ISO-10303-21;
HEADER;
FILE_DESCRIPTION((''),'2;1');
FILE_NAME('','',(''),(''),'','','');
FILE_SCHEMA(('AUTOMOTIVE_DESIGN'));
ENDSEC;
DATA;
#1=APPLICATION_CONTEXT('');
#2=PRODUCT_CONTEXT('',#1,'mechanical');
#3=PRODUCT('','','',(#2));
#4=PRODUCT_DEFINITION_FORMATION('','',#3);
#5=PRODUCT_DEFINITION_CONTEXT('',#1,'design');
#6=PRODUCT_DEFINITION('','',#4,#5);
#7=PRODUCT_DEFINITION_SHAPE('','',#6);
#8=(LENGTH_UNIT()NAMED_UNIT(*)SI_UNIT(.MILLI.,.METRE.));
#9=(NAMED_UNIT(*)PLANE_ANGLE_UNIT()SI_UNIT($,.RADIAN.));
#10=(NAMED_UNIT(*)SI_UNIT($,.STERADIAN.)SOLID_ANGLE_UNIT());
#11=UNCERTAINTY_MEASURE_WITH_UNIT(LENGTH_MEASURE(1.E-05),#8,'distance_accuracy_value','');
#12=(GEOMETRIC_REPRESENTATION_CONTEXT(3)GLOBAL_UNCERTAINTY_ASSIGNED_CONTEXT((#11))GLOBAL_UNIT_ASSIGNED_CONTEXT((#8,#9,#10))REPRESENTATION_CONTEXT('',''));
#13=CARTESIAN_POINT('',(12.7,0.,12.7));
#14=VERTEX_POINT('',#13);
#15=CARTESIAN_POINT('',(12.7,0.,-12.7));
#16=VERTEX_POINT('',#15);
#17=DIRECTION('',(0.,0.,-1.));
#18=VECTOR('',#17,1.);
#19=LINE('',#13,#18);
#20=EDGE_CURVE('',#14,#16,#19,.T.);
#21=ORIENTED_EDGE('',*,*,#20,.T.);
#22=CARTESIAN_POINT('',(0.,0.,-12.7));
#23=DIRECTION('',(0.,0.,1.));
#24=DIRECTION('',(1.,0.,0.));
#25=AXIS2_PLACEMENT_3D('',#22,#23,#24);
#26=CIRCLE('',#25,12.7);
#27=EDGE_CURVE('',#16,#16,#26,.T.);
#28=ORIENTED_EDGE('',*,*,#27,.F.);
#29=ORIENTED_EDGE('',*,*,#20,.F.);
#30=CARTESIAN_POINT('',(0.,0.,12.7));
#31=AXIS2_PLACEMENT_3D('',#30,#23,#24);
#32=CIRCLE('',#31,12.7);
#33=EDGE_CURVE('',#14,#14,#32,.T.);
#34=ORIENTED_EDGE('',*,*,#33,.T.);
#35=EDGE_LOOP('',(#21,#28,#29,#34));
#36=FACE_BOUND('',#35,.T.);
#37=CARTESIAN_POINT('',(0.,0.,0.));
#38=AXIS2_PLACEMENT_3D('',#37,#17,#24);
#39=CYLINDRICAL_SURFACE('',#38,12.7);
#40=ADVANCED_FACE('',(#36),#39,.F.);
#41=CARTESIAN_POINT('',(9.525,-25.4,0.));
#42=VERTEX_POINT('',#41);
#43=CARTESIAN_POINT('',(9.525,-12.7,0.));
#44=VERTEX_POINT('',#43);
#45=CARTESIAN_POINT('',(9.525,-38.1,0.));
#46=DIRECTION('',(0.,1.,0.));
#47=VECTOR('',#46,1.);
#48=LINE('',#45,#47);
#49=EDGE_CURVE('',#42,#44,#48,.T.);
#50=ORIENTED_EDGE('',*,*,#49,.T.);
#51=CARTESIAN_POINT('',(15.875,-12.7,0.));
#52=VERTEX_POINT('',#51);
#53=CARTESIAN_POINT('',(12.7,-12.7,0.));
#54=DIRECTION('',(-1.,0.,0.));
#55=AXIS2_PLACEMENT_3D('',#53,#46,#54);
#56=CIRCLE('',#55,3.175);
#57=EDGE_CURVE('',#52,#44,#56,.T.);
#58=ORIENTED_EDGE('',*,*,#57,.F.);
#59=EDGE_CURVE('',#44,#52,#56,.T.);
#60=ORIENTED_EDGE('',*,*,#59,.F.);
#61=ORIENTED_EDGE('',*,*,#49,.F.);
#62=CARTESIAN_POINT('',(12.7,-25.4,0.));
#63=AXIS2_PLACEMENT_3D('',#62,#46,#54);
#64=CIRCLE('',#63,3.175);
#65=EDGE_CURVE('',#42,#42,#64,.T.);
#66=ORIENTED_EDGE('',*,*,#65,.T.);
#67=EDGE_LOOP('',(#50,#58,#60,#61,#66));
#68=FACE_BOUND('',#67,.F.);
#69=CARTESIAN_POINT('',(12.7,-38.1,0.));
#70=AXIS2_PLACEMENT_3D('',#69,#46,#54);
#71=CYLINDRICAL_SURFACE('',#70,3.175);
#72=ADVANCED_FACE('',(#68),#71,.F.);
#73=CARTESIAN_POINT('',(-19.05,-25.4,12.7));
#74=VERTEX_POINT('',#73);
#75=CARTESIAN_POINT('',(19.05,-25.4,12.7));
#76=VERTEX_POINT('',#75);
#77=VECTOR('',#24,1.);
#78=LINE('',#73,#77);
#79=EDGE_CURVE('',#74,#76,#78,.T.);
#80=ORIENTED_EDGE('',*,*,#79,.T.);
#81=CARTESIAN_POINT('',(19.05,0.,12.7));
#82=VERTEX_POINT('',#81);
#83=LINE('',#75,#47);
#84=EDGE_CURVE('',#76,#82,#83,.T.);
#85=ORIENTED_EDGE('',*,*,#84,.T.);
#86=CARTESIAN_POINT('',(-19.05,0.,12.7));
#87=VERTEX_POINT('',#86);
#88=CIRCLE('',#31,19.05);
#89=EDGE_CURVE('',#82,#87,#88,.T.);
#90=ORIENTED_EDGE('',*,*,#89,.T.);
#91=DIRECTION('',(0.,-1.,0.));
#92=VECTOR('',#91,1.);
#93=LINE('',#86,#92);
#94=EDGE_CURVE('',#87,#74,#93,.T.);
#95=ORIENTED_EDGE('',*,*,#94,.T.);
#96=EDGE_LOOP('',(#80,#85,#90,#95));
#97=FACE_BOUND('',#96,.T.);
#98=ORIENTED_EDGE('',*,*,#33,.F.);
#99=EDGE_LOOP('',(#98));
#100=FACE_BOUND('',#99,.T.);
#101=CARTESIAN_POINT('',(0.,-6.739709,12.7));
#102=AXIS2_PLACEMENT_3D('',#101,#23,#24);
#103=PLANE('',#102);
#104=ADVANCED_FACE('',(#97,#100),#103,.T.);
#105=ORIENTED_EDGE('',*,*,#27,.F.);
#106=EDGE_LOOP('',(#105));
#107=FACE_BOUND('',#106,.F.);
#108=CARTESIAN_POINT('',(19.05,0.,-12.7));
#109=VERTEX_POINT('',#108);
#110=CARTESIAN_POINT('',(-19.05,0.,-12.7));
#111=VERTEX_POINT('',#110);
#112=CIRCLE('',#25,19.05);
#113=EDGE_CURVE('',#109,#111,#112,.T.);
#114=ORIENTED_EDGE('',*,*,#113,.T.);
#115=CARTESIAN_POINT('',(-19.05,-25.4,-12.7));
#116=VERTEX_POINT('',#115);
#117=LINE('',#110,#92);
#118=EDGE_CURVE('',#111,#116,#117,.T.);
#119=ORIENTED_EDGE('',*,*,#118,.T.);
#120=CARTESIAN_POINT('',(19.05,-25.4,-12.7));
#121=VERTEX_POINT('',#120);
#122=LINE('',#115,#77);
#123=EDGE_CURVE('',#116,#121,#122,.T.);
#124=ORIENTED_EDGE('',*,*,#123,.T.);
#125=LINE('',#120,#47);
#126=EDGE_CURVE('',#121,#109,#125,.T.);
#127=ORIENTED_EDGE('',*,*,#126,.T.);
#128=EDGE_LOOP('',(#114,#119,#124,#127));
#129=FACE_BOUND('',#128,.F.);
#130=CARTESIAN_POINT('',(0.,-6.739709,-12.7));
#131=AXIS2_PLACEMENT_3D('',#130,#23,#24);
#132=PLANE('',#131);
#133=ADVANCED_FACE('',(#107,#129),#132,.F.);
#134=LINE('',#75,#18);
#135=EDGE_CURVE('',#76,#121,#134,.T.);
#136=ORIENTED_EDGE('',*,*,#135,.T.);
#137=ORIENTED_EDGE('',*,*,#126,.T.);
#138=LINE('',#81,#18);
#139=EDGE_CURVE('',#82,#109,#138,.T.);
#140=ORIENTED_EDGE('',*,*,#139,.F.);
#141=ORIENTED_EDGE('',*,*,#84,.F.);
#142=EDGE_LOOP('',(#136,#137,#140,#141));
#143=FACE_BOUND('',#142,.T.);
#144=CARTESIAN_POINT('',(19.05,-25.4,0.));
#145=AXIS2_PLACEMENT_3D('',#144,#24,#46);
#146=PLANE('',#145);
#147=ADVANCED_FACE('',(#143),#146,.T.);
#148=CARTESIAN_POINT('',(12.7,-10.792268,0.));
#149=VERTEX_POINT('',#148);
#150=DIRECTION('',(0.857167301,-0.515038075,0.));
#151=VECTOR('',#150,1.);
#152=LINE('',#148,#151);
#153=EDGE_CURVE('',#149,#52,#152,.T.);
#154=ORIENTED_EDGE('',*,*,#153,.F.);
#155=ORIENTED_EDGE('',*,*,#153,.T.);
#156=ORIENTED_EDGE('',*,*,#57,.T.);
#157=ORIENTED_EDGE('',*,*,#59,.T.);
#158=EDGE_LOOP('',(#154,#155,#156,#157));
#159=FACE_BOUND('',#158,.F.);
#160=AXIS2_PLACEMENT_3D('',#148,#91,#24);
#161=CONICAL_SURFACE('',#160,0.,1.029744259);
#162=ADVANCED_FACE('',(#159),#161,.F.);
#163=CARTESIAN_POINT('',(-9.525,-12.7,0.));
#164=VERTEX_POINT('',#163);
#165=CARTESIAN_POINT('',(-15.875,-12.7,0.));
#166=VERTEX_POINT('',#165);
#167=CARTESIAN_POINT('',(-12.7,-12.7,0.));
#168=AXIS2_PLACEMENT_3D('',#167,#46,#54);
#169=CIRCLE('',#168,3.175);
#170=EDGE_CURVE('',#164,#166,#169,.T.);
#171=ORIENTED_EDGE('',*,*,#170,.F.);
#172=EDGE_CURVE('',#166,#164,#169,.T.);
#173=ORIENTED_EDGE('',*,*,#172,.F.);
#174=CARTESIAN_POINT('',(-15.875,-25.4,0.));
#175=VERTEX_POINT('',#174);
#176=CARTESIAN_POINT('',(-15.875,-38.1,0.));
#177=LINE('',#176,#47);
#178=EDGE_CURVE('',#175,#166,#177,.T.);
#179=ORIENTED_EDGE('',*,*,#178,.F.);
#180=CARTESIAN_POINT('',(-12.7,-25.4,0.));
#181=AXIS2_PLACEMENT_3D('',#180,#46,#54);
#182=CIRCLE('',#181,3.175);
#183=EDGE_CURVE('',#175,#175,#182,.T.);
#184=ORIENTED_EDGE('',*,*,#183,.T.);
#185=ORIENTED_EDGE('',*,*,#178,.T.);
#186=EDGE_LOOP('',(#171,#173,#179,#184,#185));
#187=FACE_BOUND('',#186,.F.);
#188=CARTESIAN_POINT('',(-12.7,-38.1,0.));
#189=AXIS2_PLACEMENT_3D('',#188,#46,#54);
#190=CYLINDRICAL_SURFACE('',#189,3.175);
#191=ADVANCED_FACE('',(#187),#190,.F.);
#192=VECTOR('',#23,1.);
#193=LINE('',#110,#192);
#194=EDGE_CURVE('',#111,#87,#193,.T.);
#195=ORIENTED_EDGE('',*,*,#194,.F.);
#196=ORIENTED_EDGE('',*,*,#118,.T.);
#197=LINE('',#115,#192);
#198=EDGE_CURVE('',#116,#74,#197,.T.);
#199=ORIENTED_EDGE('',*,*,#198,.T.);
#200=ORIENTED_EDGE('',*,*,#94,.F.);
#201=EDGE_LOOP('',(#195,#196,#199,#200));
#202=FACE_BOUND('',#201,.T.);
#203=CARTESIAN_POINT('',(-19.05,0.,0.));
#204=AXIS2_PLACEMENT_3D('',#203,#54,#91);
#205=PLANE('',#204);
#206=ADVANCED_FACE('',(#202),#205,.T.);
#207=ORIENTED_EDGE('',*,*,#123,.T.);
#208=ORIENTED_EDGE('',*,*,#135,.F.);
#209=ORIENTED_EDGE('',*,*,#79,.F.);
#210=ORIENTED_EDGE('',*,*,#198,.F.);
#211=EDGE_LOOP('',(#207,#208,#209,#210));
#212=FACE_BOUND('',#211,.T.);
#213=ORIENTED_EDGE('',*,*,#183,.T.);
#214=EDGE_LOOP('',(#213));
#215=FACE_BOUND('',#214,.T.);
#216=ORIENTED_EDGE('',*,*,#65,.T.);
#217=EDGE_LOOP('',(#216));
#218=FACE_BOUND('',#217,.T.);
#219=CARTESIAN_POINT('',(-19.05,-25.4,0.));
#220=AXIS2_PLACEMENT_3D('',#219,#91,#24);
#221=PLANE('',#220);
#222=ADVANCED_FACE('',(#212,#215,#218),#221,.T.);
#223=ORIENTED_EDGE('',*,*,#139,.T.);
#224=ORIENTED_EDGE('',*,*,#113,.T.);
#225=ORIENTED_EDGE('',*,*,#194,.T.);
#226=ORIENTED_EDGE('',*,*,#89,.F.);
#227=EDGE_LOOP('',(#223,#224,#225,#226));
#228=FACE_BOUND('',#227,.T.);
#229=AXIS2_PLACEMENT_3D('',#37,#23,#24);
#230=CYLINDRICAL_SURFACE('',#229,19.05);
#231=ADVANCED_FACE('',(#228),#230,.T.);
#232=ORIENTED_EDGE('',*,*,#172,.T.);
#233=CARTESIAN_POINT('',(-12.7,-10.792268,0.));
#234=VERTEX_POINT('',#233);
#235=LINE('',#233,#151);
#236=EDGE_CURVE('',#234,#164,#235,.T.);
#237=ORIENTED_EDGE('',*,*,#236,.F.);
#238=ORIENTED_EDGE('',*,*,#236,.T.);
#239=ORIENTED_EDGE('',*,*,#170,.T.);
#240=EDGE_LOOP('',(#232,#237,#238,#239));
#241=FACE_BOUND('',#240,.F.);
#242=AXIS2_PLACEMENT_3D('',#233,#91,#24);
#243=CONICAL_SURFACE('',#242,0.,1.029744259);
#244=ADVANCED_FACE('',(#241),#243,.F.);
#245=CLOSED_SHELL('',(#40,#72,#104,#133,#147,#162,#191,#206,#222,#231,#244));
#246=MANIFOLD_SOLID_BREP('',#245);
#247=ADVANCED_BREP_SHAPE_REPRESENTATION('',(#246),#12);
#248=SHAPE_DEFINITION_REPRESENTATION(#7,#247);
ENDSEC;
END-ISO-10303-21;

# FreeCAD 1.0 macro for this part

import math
import FreeCAD as App
import Part
import Sketcher

V = App.Vector
Q = App.Units.Quantity

doc = App.newDocument("Part")
body = doc.addObject("PartDesign::Body", "Body")

sketch1 = body.newObject("Sketcher::SketchObject", "Sketch")
sketch1.AttachmentSupport = (doc.getObject("XY_Plane"), [""])
sketch1.MapMode = "FlatFace"
sketch1.addGeometry([
    Part.ArcOfCircle(Part.Circle(V(0, 0, 0), V(0, 0, 1), 19.05), math.radians(0), math.radians(180)),
    Part.LineSegment(V(-19.05, 0, 0), V(-19.05, -25.4, 0)),
    Part.LineSegment(V(-19.05, -25.4, 0), V(19.05, -25.4, 0)),
    Part.LineSegment(V(19.05, -25.4, 0), V(19.05, 0, 0)),
    Part.Circle(V(0, 0, 0), V(0, 0, 1), 12.7),
], False)
sketch1.addConstraint([
    Sketcher.Constraint("Tangent", 0, 2, 1, 1),
    Sketcher.Constraint("Coincident", 1, 2, 2, 1),
    Sketcher.Constraint("Coincident", 2, 2, 3, 1),
    Sketcher.Constraint("Tangent", 3, 2, 0, 1),
    Sketcher.Constraint("Vertical", 1),
    Sketcher.Constraint("Horizontal", 2),
    Sketcher.Constraint("Vertical", 3),
    Sketcher.Constraint("Coincident", 0, 3, -1, 1),
    Sketcher.Constraint("Coincident", 4, 3, -1, 1),
    Sketcher.Constraint("Diameter", 4, Q("1 in")),
    Sketcher.Constraint("DistanceY", 1, 2, 1, 1, Q("1 in")),
    Sketcher.Constraint("Radius", 0, Q("0.75 in")),
])
pad1 = body.newObject("PartDesign::Pad", "Pad")
pad1.Profile = sketch1
pad1.Length = Q("1 in")
pad1.Midplane = True

sketch2 = body.newObject("Sketcher::SketchObject", "Sketch001")
sketch2.AttachmentSupport = (doc.getObject("XZ_Plane"), [""])
sketch2.MapMode = "FlatFace"
sketch2.AttachmentOffset = App.Placement(V(0, 0, 1 * 25.4), App.Rotation())
sketch2.addGeometry([
    Part.Circle(V(-12.7, 0, 0), V(0, 0, 1), 3.175),
    Part.Circle(V(12.7, 0, 0), V(0, 0, 1), 3.175),
], False)
sketch2.addConstraint([
    Sketcher.Constraint("Equal", 0, 1),
    Sketcher.Constraint("Symmetric", 0, 3, 1, 3, -1, 1),
    Sketcher.Constraint("PointOnObject", 0, 3, -1),
    Sketcher.Constraint("Diameter", 0, Q("0.25 in")),
    Sketcher.Constraint("DistanceX", 0, 3, 1, 3, Q("1 in")),
])
doc.recompute()
hole = body.newObject("PartDesign::Hole", "Hole")
hole.Profile = sketch2
hole.ThreadType = "None"
hole.Diameter = Q("0.25 in")
hole.DepthType = "Dimension"
hole.Depth = Q("0.5 in")
hole.DrillPoint = "Angled"
hole.DrillPointAngle = 118

doc.recompute()
